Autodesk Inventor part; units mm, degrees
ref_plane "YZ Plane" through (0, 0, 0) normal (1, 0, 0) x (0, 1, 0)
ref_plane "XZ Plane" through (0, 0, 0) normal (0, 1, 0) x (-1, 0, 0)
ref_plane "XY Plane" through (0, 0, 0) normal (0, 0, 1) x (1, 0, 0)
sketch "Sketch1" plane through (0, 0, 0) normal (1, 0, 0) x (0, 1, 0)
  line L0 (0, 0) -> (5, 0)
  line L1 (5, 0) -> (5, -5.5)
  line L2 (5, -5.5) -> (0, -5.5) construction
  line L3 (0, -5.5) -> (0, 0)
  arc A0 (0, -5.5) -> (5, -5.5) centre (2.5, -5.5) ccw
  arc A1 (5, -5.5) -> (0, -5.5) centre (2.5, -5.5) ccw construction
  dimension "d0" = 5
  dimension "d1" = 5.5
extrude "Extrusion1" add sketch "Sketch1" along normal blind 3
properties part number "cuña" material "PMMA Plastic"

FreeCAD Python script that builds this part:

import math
import FreeCAD as App
import Part
import Sketcher

doc = App.newDocument("Part")
body = doc.addObject("PartDesign::Body", "Body")

sketch1 = body.newObject("Sketcher::SketchObject", "Sketch")
sketch1.AttachmentSupport = (doc.getObject("YZ_Plane"), [""])
sketch1.MapMode = "FlatFace"
sketch1.addGeometry([
    Part.LineSegment(App.Vector(5, 0, 0), App.Vector(0, 0, 0)),
    Part.LineSegment(App.Vector(0, 0, 0), App.Vector(0, -5.5, 0)),
    Part.ArcOfCircle(Part.Circle(App.Vector(2.5, -5.5, 0), App.Vector(0, 0, 1), 2.5), math.radians(180), math.radians(360)),
    Part.LineSegment(App.Vector(5, -5.5, 0), App.Vector(5, 0, 0)),
], False)
sketch1.addConstraint([
    Sketcher.Constraint("Coincident", 0, 2, 1, 1),
    Sketcher.Constraint("Tangent", 1, 2, 2, 1),
    Sketcher.Constraint("Tangent", 2, 2, 3, 1),
    Sketcher.Constraint("Coincident", 3, 2, 0, 1),
    Sketcher.Constraint("Horizontal", 0),
    Sketcher.Constraint("Vertical", 1),
    Sketcher.Constraint("Vertical", 3),
    Sketcher.Constraint("Coincident", 0, 2, -1, 1),
    Sketcher.Constraint("Radius", 2, 2.5),
    Sketcher.Constraint("DistanceY", 1, 2, 1, 1, 5.5),
])
pad1 = body.newObject("PartDesign::Pad", "Pad")
pad1.Profile = sketch1
pad1.Length = 3

doc.recompute()
